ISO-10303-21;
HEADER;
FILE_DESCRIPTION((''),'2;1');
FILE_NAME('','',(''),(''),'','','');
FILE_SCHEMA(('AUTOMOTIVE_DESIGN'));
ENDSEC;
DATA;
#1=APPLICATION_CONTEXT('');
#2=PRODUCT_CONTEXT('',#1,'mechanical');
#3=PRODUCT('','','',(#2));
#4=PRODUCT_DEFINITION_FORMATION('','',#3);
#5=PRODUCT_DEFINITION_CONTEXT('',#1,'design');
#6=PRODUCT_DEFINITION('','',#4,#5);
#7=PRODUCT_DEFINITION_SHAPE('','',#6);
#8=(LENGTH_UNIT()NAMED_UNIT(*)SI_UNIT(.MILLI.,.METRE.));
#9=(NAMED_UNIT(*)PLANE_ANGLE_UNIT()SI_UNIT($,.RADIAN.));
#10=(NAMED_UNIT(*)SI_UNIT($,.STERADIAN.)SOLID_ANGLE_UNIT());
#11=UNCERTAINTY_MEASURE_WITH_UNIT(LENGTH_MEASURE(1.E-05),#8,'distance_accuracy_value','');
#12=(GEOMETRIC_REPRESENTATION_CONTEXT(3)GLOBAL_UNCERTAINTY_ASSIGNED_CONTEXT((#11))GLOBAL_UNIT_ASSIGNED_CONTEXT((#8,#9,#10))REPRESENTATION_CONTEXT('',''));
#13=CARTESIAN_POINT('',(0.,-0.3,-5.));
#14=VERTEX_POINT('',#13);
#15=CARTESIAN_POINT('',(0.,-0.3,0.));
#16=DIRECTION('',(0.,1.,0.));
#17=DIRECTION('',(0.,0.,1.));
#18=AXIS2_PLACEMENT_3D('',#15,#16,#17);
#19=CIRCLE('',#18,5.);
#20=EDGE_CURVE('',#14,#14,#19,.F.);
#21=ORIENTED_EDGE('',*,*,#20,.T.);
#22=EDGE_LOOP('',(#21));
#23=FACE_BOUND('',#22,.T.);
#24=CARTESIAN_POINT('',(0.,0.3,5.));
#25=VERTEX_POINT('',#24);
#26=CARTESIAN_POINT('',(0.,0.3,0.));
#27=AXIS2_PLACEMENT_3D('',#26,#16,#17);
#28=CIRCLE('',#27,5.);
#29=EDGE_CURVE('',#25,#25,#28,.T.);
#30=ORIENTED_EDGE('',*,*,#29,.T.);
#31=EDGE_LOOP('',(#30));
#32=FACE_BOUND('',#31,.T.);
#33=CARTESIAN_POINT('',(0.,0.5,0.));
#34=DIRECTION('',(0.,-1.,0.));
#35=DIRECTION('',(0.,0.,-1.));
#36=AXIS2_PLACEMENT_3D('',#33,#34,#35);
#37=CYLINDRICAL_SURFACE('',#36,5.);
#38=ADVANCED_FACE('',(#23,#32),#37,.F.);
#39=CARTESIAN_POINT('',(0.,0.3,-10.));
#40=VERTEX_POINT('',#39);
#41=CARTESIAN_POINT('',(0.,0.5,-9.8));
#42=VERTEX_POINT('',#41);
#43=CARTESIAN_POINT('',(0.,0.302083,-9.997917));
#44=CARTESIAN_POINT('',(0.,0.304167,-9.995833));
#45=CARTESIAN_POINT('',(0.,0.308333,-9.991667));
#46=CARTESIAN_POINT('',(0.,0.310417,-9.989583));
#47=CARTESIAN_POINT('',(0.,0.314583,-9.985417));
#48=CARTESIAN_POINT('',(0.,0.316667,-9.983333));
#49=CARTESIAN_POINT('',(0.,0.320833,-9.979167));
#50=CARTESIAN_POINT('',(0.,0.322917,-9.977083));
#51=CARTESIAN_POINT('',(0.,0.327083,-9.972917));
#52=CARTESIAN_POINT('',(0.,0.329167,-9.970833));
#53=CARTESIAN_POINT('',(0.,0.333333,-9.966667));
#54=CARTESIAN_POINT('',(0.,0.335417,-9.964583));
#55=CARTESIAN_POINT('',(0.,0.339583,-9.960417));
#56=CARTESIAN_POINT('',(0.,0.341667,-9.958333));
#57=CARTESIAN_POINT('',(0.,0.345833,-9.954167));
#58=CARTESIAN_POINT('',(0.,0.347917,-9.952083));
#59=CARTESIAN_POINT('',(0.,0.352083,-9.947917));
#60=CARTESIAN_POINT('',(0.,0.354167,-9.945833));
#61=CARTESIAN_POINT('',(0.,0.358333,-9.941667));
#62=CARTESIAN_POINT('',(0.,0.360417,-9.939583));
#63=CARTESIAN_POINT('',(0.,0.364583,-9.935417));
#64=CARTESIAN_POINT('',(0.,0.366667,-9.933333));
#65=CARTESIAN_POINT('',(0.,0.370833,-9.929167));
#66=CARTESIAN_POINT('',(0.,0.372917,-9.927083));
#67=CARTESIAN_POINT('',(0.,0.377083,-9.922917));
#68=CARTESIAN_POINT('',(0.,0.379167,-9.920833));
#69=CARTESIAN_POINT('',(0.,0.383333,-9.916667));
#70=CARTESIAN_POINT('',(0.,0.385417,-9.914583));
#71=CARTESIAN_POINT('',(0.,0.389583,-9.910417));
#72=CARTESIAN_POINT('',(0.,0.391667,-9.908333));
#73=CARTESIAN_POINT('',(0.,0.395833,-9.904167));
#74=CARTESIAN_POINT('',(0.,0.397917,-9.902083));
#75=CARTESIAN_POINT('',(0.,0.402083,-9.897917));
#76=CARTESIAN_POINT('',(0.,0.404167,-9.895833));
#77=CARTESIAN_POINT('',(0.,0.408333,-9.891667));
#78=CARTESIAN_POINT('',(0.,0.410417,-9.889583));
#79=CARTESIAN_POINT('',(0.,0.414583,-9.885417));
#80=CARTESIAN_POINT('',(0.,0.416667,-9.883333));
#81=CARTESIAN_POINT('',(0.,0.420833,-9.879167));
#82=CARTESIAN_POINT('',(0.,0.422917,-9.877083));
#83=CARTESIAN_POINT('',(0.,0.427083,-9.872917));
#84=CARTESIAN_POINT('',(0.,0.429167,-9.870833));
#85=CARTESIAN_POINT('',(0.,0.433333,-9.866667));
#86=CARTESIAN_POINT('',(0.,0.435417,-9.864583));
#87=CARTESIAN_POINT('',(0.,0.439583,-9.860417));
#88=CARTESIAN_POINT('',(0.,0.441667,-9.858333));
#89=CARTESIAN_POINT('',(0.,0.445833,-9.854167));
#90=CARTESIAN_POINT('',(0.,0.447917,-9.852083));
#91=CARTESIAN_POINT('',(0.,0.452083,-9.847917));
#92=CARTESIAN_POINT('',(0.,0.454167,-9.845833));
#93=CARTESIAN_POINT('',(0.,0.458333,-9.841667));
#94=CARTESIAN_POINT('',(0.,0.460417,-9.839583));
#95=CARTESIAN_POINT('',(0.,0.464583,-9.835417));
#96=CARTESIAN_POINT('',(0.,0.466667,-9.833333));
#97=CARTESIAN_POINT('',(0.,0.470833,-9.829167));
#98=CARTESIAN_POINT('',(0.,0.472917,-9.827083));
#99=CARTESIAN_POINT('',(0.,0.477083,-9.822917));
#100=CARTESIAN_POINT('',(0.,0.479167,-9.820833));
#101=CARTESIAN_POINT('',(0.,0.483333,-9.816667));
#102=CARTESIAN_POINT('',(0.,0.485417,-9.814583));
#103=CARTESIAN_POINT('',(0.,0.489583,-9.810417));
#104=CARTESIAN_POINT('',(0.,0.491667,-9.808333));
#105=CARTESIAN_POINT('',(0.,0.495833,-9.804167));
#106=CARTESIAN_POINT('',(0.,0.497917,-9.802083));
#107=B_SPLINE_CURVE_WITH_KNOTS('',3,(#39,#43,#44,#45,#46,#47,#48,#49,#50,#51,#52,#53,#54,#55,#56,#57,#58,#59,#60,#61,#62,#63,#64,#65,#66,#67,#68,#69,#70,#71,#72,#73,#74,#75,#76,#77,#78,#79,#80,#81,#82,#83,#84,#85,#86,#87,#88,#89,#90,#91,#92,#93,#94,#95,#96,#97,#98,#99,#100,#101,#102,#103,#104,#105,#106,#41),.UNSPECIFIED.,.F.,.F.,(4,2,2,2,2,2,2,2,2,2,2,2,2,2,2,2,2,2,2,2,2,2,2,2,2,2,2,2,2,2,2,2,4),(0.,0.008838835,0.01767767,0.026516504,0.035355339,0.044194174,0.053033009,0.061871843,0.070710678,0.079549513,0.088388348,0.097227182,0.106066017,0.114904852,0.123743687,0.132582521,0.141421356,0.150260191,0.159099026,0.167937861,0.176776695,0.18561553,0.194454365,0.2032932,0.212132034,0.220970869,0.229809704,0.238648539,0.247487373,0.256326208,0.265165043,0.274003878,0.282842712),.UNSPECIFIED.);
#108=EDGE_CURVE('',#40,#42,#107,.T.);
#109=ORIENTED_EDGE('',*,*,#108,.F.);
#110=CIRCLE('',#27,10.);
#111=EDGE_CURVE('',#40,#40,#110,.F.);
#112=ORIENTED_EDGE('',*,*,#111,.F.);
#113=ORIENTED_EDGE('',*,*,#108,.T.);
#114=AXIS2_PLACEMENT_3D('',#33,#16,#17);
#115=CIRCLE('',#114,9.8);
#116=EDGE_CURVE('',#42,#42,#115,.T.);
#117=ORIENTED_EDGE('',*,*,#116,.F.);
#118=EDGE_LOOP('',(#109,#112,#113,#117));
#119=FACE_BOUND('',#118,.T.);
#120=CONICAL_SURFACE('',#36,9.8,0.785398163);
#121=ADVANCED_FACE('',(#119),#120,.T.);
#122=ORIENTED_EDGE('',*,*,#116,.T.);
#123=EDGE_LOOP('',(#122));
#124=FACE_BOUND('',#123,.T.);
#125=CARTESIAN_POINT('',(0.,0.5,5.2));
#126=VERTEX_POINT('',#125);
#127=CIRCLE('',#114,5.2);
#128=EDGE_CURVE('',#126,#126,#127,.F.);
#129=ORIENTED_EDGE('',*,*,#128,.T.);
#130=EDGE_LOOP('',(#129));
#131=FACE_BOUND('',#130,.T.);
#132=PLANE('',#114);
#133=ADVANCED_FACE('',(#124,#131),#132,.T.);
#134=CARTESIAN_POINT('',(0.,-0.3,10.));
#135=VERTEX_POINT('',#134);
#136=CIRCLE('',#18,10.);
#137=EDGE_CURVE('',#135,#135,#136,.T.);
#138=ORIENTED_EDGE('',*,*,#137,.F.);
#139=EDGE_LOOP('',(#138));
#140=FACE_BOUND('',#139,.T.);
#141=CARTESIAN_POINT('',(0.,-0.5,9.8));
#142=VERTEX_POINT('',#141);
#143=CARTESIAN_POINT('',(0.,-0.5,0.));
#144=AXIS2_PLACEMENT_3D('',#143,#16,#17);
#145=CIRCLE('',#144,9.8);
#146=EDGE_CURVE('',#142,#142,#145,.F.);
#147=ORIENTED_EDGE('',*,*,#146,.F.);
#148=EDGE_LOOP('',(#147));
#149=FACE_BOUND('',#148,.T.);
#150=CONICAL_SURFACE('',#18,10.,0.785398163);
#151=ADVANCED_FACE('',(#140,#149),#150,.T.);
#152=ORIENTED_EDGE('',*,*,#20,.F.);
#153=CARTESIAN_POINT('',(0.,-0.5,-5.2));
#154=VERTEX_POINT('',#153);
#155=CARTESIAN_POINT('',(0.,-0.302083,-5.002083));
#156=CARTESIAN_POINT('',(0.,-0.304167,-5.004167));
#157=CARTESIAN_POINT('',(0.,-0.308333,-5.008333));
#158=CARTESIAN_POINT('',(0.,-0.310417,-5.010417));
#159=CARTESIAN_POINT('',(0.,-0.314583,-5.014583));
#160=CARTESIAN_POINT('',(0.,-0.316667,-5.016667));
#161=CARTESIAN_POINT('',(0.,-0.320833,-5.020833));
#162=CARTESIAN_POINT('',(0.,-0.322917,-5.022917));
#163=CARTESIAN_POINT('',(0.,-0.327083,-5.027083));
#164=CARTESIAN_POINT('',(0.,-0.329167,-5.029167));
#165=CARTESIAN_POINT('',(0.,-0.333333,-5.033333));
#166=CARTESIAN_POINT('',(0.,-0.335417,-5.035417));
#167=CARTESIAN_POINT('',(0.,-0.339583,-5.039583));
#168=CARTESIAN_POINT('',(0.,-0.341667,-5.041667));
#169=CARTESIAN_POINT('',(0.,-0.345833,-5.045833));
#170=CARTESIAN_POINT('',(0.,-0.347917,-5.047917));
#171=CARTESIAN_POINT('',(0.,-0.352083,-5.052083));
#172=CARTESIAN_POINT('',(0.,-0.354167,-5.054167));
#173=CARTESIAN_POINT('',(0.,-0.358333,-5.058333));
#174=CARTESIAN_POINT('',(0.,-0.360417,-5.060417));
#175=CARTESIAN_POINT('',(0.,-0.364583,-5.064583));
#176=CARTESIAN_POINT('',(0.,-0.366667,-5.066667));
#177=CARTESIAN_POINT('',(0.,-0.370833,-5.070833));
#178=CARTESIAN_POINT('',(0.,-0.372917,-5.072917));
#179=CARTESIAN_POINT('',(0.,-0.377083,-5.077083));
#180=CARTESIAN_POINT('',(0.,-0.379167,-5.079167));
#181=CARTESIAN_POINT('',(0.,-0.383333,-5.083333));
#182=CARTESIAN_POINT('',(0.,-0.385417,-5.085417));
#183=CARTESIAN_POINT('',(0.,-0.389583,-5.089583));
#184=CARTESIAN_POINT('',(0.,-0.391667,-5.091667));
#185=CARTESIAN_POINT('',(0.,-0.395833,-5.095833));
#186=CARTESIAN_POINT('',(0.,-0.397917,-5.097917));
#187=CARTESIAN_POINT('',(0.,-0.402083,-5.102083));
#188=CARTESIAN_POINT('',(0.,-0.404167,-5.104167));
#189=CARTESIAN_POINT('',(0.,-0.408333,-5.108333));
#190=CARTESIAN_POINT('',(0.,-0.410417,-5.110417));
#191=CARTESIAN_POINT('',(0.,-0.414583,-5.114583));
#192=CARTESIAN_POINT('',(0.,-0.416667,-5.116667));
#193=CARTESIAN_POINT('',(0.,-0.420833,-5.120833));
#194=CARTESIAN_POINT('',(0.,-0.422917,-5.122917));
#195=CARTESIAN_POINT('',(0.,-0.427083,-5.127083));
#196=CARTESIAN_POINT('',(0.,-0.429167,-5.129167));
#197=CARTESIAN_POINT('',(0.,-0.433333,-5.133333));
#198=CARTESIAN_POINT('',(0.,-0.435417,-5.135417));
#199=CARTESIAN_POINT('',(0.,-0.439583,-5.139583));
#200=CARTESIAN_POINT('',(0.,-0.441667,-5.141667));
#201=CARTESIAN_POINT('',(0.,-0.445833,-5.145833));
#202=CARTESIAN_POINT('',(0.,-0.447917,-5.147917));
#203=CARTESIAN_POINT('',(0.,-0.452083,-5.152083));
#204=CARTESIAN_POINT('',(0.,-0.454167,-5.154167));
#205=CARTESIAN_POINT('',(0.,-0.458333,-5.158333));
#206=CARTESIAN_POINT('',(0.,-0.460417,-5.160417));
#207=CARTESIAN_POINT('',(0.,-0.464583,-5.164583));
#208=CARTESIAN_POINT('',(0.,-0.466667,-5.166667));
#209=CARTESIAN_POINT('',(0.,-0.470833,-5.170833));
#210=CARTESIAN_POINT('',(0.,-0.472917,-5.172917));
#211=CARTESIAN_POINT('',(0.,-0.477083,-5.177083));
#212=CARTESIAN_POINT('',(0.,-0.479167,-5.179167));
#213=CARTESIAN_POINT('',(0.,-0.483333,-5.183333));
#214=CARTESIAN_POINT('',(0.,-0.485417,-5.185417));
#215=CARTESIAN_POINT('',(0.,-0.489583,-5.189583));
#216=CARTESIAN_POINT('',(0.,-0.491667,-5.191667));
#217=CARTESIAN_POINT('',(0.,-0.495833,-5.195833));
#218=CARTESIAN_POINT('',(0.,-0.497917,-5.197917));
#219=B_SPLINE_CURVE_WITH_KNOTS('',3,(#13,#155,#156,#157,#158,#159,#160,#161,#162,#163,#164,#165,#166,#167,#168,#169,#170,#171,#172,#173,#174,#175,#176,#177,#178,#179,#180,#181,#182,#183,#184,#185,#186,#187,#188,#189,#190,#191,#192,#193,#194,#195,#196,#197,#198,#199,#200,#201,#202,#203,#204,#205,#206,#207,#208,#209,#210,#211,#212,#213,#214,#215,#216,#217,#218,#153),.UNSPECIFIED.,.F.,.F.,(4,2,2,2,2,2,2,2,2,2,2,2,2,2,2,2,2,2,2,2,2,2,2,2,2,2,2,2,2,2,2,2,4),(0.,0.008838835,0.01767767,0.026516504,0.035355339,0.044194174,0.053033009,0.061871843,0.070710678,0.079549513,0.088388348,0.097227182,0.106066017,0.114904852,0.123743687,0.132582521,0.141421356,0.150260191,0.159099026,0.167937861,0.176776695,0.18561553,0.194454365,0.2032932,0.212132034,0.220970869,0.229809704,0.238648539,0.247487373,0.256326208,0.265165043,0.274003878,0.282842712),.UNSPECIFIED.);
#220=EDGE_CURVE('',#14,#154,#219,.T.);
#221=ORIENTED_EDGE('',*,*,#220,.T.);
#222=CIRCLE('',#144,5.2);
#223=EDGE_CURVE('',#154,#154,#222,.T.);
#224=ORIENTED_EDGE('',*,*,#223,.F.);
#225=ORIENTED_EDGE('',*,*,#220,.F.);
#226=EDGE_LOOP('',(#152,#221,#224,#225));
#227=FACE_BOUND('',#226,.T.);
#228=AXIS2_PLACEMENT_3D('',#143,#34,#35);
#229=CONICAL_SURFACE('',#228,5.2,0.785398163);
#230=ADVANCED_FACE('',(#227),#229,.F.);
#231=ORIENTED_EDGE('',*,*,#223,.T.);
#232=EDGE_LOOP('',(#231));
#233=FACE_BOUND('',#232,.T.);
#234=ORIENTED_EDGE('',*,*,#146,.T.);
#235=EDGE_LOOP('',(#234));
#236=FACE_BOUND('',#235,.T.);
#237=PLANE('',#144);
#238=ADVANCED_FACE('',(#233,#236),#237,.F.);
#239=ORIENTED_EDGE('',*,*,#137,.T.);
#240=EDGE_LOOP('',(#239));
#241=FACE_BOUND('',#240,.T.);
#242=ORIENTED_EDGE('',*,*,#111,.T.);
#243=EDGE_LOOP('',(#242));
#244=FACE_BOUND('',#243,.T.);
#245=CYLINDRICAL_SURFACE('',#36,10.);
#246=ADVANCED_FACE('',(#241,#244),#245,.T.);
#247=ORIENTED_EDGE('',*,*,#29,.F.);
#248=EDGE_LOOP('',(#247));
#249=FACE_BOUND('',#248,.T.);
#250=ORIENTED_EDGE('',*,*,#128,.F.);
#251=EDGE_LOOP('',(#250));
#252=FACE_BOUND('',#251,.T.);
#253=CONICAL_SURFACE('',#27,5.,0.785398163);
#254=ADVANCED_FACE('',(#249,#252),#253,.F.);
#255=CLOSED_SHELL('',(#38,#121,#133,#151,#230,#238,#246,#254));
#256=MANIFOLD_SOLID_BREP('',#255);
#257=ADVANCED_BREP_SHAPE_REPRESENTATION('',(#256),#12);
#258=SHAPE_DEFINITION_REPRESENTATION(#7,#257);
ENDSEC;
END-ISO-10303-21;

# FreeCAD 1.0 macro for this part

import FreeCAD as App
import Part
import Sketcher

V = App.Vector


def edges_at(feature, points):
    """Names of the edges that pass closest to the given points."""
    edges = feature.Shape.Edges
    near = lambda p: min(range(len(edges)), key=lambda i: edges[i].distToShape(Part.Vertex(*p))[0])
    return sorted({f"Edge{near(p) + 1}" for p in points})

doc = App.newDocument("Part")
body = doc.addObject("PartDesign::Body", "Body")

# Sketch on XZ plane
sketch1 = doc.addObject("Sketcher::SketchObject", "Sketch")
body.addObject(sketch1)
sketch1.AttachmentSupport = (doc.XZ_Plane, [""])
sketch1.MapMode = "FlatFace"
sketch1.addGeometry([
    Part.Circle(V(0, 0, 0), V(0, 0, 1), 10),
    Part.Circle(V(0, 0, 0), V(0, 0, 1), 5),
], False)
sketch1.addConstraint([
    Sketcher.Constraint("Coincident", 0, 3, -1, 1),
    Sketcher.Constraint("Coincident", 1, 3, -1, 1),
    Sketcher.Constraint("Diameter", 0, 20.0),
    Sketcher.Constraint("Diameter", 1, 10.0),
])
pad1 = doc.addObject("PartDesign::Pad", "Pad")
body.addObject(pad1)
pad1.Profile = sketch1
pad1.Length = 1
pad1.Midplane = True
doc.recompute()

chamfer = doc.addObject("PartDesign::Chamfer", "Chamfer")
body.addObject(chamfer)
chamfer.Base = (pad1, edges_at(pad1, [
    (0, -0.5, -10),
    (0, 0.5, -10),
    (0, -0.5, -5),
    (0, 0.5, -5),
]))
chamfer.Size = 0.2

doc.recompute()
